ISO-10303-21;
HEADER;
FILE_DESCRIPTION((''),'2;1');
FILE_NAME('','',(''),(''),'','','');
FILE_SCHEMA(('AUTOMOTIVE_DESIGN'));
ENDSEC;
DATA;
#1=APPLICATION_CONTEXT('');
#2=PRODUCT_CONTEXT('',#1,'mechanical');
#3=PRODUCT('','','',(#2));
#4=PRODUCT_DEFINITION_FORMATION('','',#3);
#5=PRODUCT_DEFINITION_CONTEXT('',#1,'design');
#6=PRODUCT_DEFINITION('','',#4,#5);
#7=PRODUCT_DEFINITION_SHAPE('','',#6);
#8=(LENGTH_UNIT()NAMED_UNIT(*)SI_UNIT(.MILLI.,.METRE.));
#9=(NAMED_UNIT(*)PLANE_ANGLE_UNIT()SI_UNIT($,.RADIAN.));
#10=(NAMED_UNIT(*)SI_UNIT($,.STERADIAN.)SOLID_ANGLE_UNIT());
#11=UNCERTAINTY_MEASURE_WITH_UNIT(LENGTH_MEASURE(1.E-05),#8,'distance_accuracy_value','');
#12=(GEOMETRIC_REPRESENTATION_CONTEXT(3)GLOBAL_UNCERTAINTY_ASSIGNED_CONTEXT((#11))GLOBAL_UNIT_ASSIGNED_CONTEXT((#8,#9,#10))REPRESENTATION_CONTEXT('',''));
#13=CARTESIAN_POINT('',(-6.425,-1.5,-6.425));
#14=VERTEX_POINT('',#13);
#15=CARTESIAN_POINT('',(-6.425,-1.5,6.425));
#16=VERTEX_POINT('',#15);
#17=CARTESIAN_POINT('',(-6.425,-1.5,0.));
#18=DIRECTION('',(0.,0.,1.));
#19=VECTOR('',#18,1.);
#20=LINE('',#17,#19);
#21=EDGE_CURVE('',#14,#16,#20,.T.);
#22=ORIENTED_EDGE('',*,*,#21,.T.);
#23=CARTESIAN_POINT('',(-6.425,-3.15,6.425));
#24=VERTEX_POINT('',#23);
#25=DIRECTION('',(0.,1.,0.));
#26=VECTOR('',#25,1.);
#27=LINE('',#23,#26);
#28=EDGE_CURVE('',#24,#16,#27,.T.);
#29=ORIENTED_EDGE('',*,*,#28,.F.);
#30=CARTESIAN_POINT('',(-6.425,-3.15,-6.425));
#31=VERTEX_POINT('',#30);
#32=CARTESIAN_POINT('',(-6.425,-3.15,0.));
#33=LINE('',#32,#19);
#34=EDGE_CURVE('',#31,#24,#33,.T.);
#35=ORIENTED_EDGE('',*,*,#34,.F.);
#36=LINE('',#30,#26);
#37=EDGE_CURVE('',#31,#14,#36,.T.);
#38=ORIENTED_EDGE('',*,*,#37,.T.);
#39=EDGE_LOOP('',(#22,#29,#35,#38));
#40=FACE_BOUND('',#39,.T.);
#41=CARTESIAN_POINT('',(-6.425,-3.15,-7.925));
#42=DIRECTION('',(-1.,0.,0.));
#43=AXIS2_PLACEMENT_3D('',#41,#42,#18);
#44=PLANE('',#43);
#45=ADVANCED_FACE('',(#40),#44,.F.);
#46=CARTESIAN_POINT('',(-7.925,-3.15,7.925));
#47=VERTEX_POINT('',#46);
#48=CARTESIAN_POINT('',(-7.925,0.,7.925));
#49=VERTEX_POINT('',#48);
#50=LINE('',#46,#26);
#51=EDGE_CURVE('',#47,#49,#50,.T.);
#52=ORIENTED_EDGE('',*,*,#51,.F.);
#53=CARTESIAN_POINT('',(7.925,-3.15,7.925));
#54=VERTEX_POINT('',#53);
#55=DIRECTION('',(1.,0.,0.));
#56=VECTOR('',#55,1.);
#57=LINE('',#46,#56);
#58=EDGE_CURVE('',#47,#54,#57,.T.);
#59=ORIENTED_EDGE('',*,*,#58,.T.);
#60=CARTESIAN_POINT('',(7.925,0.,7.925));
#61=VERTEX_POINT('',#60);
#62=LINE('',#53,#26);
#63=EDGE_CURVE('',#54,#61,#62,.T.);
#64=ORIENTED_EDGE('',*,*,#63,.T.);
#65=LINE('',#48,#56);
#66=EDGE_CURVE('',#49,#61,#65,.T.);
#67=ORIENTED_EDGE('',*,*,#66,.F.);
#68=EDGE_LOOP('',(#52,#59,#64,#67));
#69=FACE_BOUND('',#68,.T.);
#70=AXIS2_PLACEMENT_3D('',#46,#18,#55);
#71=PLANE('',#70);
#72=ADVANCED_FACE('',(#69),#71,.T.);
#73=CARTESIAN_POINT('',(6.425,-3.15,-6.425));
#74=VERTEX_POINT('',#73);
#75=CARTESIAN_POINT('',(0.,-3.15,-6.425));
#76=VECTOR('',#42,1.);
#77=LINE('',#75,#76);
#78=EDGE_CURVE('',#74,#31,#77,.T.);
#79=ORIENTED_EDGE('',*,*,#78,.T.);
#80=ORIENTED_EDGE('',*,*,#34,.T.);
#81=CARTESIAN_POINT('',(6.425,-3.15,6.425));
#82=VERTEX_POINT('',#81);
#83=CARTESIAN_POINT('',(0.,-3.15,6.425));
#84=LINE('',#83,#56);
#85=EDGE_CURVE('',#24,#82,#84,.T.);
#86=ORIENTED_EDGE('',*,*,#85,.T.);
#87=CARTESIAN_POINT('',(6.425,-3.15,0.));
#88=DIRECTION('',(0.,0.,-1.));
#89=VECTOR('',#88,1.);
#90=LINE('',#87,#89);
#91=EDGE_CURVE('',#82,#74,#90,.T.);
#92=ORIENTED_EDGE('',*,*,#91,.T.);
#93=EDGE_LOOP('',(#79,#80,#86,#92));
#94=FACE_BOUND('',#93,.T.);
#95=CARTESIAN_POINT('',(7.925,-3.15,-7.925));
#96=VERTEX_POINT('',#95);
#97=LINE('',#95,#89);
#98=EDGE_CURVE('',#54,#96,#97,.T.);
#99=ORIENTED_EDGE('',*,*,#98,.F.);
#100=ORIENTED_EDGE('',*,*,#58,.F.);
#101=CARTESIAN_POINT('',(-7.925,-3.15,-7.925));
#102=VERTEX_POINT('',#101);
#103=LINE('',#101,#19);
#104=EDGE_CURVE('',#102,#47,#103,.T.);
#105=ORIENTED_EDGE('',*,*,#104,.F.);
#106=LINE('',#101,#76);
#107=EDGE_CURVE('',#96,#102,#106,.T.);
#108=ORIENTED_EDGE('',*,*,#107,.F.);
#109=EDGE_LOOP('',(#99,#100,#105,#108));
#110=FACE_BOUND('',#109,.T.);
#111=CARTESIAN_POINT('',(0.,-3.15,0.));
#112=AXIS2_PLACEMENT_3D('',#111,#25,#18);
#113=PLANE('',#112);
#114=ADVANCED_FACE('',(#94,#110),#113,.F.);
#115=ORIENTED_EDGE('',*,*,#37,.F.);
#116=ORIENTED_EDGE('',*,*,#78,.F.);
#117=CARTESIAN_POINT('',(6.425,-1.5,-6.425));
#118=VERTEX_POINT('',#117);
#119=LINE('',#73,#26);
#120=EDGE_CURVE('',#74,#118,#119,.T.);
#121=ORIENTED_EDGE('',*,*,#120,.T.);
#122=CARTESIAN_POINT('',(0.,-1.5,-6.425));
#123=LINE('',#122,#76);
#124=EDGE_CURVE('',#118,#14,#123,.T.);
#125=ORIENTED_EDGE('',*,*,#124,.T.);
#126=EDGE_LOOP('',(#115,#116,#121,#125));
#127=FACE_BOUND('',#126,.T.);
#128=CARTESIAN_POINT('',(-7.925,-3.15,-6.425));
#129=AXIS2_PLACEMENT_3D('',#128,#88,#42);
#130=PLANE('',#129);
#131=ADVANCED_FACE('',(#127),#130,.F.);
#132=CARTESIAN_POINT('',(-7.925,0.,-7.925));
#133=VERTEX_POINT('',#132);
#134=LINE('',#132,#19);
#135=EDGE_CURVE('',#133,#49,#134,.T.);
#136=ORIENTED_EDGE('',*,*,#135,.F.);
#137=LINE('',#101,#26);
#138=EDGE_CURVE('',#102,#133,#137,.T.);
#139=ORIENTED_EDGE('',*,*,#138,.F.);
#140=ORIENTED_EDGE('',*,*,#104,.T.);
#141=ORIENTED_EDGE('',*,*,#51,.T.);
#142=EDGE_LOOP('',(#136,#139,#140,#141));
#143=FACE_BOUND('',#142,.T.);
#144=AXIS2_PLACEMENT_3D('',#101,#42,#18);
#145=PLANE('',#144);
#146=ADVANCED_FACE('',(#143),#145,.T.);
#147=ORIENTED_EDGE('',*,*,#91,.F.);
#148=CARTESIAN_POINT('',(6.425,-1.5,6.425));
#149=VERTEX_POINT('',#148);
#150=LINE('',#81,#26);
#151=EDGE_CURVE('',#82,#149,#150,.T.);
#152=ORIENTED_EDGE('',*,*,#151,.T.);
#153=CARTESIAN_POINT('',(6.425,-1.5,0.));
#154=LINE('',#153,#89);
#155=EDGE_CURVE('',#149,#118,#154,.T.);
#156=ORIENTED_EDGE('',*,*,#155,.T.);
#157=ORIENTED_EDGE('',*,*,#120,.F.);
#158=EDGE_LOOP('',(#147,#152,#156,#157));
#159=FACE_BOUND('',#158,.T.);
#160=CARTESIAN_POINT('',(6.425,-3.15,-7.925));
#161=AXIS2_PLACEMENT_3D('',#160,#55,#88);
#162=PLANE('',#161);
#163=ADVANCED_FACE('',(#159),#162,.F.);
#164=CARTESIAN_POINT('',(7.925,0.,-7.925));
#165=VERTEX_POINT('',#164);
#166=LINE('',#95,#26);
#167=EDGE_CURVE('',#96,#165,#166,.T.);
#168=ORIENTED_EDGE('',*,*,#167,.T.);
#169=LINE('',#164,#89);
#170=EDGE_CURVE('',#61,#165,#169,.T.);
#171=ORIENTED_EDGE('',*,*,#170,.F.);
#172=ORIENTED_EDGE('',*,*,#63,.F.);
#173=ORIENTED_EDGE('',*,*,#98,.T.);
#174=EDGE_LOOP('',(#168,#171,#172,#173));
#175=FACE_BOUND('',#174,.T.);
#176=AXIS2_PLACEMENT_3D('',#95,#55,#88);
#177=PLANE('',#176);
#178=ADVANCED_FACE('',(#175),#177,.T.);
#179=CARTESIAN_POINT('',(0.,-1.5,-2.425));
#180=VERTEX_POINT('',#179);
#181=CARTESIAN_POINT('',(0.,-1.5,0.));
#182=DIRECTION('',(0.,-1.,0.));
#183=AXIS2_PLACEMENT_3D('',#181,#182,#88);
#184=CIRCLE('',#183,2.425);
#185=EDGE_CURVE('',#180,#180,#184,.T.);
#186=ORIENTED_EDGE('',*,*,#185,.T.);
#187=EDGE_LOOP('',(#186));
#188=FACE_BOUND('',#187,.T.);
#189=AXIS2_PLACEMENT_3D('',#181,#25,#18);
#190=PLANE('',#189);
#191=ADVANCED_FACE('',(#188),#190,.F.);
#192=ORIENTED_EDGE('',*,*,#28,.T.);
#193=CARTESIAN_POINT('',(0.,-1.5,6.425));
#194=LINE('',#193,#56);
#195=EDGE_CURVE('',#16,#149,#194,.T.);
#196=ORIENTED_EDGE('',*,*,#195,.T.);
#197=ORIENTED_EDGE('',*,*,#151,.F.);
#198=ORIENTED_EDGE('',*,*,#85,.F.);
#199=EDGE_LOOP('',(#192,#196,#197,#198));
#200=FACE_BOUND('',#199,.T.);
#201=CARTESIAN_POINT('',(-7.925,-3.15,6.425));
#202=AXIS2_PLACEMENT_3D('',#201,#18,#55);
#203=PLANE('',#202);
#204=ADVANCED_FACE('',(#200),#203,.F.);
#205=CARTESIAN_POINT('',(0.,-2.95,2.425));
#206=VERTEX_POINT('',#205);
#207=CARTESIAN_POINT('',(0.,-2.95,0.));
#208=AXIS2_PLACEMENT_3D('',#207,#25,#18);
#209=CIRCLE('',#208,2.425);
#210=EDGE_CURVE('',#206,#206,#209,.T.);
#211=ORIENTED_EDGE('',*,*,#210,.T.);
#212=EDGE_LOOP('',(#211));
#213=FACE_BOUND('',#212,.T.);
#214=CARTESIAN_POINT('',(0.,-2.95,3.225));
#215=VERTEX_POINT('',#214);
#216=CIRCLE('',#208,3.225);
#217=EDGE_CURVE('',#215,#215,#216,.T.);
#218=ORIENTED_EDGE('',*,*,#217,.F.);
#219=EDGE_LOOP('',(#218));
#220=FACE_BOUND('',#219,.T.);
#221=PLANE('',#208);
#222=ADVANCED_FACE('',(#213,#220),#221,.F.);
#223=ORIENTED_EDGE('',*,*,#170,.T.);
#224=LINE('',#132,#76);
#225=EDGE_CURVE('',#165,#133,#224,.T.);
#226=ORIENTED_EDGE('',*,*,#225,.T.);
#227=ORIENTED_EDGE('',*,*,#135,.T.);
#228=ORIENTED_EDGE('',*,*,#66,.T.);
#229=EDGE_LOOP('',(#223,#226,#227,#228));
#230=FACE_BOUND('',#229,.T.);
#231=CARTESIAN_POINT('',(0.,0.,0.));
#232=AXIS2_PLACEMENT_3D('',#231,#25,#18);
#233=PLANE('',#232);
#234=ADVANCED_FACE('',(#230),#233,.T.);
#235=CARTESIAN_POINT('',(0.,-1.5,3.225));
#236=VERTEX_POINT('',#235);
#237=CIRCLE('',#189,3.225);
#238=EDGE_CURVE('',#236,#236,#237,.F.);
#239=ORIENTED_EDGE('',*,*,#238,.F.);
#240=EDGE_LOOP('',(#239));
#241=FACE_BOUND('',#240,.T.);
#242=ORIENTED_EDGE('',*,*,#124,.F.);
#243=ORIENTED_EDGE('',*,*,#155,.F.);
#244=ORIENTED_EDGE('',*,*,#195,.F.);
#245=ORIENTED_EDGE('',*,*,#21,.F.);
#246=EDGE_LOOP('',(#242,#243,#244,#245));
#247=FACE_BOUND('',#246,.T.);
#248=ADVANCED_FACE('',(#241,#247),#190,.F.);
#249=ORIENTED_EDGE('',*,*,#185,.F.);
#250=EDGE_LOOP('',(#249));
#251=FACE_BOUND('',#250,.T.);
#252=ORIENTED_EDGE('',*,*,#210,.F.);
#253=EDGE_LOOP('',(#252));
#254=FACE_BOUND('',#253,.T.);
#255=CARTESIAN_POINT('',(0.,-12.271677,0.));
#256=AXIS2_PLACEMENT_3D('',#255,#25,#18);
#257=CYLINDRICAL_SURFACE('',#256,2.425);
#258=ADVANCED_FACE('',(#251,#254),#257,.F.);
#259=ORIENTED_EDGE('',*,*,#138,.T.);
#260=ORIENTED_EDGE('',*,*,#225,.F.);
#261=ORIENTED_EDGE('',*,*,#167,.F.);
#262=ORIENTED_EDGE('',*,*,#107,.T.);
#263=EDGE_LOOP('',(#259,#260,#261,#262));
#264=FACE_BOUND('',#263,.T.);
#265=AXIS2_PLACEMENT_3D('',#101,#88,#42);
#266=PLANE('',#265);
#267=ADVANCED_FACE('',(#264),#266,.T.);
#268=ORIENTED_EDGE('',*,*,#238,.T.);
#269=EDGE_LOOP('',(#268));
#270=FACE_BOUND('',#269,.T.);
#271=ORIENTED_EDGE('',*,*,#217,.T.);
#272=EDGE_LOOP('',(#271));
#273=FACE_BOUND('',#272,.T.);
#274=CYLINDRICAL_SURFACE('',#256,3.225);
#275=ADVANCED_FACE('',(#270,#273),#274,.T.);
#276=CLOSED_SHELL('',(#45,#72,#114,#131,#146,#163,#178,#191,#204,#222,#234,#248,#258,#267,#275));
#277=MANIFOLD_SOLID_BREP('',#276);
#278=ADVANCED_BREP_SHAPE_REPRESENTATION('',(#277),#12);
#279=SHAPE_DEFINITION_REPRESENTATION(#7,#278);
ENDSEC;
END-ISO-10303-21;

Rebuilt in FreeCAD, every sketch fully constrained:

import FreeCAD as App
import Part
import Sketcher
from FreeCAD import Vector
Q = App.Units.Quantity


def faces_at(feature, points):
    """Names of the faces that lie closest to the given points."""
    faces = feature.Shape.Faces
    near = lambda p: min(range(len(faces)), key=lambda i: faces[i].distToShape(Part.Vertex(*p))[0])
    return sorted({f"Face{near(p) + 1}" for p in points})

doc = App.newDocument("Part")
body = doc.addObject("PartDesign::Body", "Body")

# Sketch on XZ plane
sketch1 = body.newObject("Sketcher::SketchObject", "Sketch")
sketch1.AttachmentSupport = (doc.getObject("XZ_Plane"), [""])
sketch1.MapMode = "FlatFace"
sketch1.addGeometry(Part.LineSegment(Vector(-8, -8, 0), Vector(-8, 8, 0)), False)
sketch1.addGeometry(Part.LineSegment(Vector(-8, 8, 0), Vector(8, 8, 0)), False)
sketch1.addGeometry(Part.LineSegment(Vector(8, 8, 0), Vector(8, -8, 0)), False)
sketch1.addGeometry(Part.LineSegment(Vector(8, -8, 0), Vector(-8, -8, 0)), False)
sketch1.addConstraint(Sketcher.Constraint("Coincident", 0, 2, 1, 1))
sketch1.addConstraint(Sketcher.Constraint("Coincident", 1, 2, 2, 1))
sketch1.addConstraint(Sketcher.Constraint("Coincident", 2, 2, 3, 1))
sketch1.addConstraint(Sketcher.Constraint("Coincident", 3, 2, 0, 1))
sketch1.addConstraint(Sketcher.Constraint("Vertical", 0))
sketch1.addConstraint(Sketcher.Constraint("Horizontal", 1))
sketch1.addConstraint(Sketcher.Constraint("Vertical", 2))
sketch1.addConstraint(Sketcher.Constraint("Horizontal", 3))
sketch1.addConstraint(Sketcher.Constraint("Symmetric", 0, 2, 2, 2, -1, 1))
sketch1.addConstraint(Sketcher.Constraint("Equal", 3, 0))
sketch1.addConstraint(Sketcher.Constraint("DistanceX", 1, 1, 1, 2, Q("15.85 mm")))
pad1 = body.newObject("PartDesign::Pad", "Pad")
pad1.Profile = sketch1
pad1.Length = 3.15
doc.recompute()

thickness = body.newObject("PartDesign::Thickness", "Thickness")
thickness.Base = (pad1, faces_at(pad1, [(0, -3.15, 0)]))
thickness.Value = 1.5
thickness.Reversed = True
thickness.Join = "Intersection"

# Sketch on XZ plane
sketch2 = body.newObject("Sketcher::SketchObject", "Sketch001")
sketch2.AttachmentSupport = (doc.getObject("XZ_Plane"), [""])
sketch2.MapMode = "FlatFace"
sketch2.AttachmentOffset = App.Placement(Vector(0, 0, 1.5), App.Rotation())
sketch2.addGeometry(Part.Circle(Vector(0, 0, 0), Vector(0, 0, 1), 3.2), False)
sketch2.addGeometry(Part.Circle(Vector(0, 0, 0), Vector(0, 0, 1), 2.4), False)
sketch2.addConstraint(Sketcher.Constraint("Coincident", 0, 3, -1, 1))
sketch2.addConstraint(Sketcher.Constraint("Coincident", 1, 3, -1, 1))
sketch2.addConstraint(Sketcher.Constraint("Diameter", 0, Q("6.45 mm")))
sketch2.addConstraint(Sketcher.Constraint("Diameter", 1, Q("4.85 mm")))
pad2 = body.newObject("PartDesign::Pad", "Pad001")
pad2.Profile = sketch2
pad2.Length = 1.45

doc.recompute()
